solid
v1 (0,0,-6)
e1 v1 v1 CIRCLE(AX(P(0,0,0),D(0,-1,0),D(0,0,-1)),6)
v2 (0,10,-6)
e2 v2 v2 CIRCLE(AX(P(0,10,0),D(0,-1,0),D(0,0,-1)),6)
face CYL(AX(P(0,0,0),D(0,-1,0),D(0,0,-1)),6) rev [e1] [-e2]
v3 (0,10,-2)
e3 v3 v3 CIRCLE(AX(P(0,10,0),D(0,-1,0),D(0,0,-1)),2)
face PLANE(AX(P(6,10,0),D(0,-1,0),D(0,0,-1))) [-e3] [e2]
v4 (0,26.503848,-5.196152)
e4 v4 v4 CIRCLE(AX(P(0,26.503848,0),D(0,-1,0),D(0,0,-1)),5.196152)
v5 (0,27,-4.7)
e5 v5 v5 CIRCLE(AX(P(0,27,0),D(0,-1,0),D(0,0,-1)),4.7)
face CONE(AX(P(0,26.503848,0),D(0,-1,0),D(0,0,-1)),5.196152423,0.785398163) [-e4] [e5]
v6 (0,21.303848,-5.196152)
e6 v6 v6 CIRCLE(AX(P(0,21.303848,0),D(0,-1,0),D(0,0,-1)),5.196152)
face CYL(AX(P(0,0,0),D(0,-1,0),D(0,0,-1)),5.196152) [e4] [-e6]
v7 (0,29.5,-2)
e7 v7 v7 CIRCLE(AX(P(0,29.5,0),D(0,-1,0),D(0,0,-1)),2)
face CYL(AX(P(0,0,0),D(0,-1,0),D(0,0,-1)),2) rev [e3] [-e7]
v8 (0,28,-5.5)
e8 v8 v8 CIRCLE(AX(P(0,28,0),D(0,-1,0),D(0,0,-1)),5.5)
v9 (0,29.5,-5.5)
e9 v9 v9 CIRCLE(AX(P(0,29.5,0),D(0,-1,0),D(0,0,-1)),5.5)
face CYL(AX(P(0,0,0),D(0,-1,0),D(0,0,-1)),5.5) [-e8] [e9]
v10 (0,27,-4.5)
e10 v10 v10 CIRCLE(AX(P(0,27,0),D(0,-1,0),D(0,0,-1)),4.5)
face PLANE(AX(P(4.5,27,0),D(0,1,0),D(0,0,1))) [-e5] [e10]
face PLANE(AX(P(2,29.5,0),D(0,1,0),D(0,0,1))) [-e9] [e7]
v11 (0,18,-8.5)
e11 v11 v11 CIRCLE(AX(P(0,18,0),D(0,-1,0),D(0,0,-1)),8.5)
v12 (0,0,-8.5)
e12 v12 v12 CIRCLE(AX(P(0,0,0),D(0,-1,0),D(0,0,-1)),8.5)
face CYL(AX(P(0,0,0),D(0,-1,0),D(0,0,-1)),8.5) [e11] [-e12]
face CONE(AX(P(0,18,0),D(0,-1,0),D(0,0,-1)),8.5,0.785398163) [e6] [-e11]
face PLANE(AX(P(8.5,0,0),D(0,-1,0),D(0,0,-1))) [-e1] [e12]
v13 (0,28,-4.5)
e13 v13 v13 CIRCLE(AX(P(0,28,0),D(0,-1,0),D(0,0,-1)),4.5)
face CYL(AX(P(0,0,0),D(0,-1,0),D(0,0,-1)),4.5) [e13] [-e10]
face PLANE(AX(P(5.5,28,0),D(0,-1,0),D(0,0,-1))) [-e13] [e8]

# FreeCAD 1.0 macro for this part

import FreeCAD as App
import Part
import Sketcher

V = App.Vector
Q = App.Units.Quantity


def add_polygon(sketch, points):
    """Adds a closed chain of lines whose ends are joined by coincident constraints."""
    first, n = sketch.GeometryCount, len(points)
    for a, b in zip(points, points[1:] + points[:1]):
        sketch.addGeometry(Part.LineSegment(App.Vector(*a, 0), App.Vector(*b, 0)), False)
    for i in range(n):
        sketch.addConstraint(Sketcher.Constraint("Coincident", first + i, 2, first + (i + 1) % n, 1))

doc = App.newDocument("Part")
body = doc.addObject("PartDesign::Body", "Body")

sketch1 = body.newObject("Sketcher::SketchObject", "Sketch")
sketch1.AttachmentSupport = (doc.getObject("XY_Plane"), [""])
sketch1.MapMode = "FlatFace"
add_polygon(sketch1, [(2, 29.5), (2, 10), (6, 10), (6, 0), (8.5, 0), (8.5, 18), (5.2, 21.3), (5.2, 26.5), (4.7, 27), (4.5, 27), (4.5, 28), (5.5, 28), (5.5, 29.5)])
sketch1.addConstraint(Sketcher.Constraint("Vertical", 0))
sketch1.addConstraint(Sketcher.Constraint("Horizontal", 1))
sketch1.addConstraint(Sketcher.Constraint("Vertical", 2))
sketch1.addConstraint(Sketcher.Constraint("Horizontal", 3))
sketch1.addConstraint(Sketcher.Constraint("Vertical", 4))
sketch1.addConstraint(Sketcher.Constraint("Vertical", 6))
sketch1.addConstraint(Sketcher.Constraint("Horizontal", 8))
sketch1.addConstraint(Sketcher.Constraint("Vertical", 9))
sketch1.addConstraint(Sketcher.Constraint("Horizontal", 10))
sketch1.addConstraint(Sketcher.Constraint("Vertical", 11))
sketch1.addConstraint(Sketcher.Constraint("Horizontal", 12))
sketch1.addConstraint(Sketcher.Constraint("PointOnObject", 2, 2, -1))
sketch1.addConstraint(Sketcher.Constraint("Parallel", 5, 7))
sketch1.addConstraint(Sketcher.Constraint("Equal", 10, 9))
sketch1.addConstraint(Sketcher.Constraint("DistanceX", 1, 1, 1, 2, Q("4 mm")))
sketch1.addConstraint(Sketcher.Constraint("DistanceX", 10, 1, 10, 2, Q("1 mm")))
sketch1.addConstraint(Sketcher.Constraint("DistanceY", 2, 2, 2, 1, Q("10 mm")))
sketch1.addConstraint(Sketcher.Constraint("DistanceY", 4, 1, 4, 2, Q("18 mm")))
sketch1.addConstraint(Sketcher.Constraint("Angle", 5, Q("135 deg")))
sketch1.addConstraint(Sketcher.Constraint("DistanceX", 3, 1, 3, 2, Q("2.5 mm")))
sketch1.addConstraint(Sketcher.Constraint("DistanceX", 8, 2, 8, 1, Q("0.2 mm")))
sketch1.addConstraint(Sketcher.Constraint("DistanceX", 12, 2, 12, 1, Q("3.5 mm")))
sketch1.addConstraint(Sketcher.Constraint("DistanceY", 0, 2, 0, 1, Q("19.5 mm")))
sketch1.addConstraint(Sketcher.Constraint("DistanceY", 6, 1, 6, 2, Q("5.2 mm")))
sketch1.addConstraint(Sketcher.Constraint("DistanceX", -1, 1, 0, 2, Q("2 mm")))
sketch1.addConstraint(Sketcher.Constraint("Distance", 5, Q("4.672346 mm")))
revolution = body.newObject("PartDesign::Revolution", "Revolution")
revolution.Profile = sketch1
revolution.ReferenceAxis = (sketch1, ["V_Axis"])
revolution.Angle = 360

doc.recompute()
